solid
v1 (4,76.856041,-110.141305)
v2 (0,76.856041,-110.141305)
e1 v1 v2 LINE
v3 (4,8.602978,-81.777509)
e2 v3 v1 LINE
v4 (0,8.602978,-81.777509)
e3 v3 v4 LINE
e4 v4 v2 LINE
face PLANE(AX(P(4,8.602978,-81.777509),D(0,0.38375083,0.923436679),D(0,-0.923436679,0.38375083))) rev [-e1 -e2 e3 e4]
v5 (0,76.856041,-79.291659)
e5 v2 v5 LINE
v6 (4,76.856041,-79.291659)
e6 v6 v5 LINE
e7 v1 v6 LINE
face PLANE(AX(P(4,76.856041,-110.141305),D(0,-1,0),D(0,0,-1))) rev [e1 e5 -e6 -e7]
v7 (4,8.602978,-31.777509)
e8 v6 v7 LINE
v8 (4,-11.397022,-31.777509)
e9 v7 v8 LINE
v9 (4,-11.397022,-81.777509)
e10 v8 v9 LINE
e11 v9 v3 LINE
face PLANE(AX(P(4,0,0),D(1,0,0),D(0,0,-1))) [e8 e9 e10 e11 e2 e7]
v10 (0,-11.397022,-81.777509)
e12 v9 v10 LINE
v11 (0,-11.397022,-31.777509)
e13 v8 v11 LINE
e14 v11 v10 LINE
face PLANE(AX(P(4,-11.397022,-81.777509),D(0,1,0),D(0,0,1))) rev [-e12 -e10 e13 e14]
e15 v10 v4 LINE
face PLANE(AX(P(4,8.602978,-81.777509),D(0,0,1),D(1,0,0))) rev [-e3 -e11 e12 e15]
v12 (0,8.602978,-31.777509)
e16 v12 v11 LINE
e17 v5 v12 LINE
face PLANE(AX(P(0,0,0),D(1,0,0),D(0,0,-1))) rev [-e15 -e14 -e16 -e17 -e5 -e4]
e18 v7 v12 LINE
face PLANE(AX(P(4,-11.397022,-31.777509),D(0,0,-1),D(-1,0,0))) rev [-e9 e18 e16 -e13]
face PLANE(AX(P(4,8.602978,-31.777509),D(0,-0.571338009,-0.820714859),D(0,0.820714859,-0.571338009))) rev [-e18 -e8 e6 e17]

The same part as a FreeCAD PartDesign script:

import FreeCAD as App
import Part
import Sketcher
from FreeCAD import Vector

doc = App.newDocument("Part")
params = doc.addObject("Spreadsheet::Sheet", "Params")
for row, (alias, value) in enumerate([
    ("sketch1_width", "20 mm"),
    ("sketch1_height", "50 mm"),
    ("pad1_length", "4 mm"),
], start=1):
    params.set(f"A{row}", alias)
    params.set(f"B{row}", "=" + value)
    params.setAlias(f"B{row}", alias)

body = doc.addObject("PartDesign::Body", "Body")

# Sketch on YZ plane
sketch1 = body.newObject("Sketcher::SketchObject", "Sketch")
sketch1.AttachmentSupport = (doc.getObject("YZ_Plane"), [""])
sketch1.MapMode = "FlatFace"
sketch1.addGeometry([
    Part.LineSegment(Vector(77, -79, 0), Vector(9, -32, 0)),  # 0
    Part.LineSegment(Vector(9, -32, 0), Vector(-11, -32, 0)),  # 1
    Part.LineSegment(Vector(-11, -32, 0), Vector(-11, -82, 0)),  # 2
    Part.LineSegment(Vector(-11, -82, 0), Vector(9, -82, 0)),  # 3
    Part.LineSegment(Vector(9, -82, 0), Vector(77, -110, 0)),  # 4
    Part.LineSegment(Vector(77, -110, 0), Vector(77, -79, 0)),  # 5
], False)
sketch1.addConstraint([
    Sketcher.Constraint("Coincident", 0, 2, 1, 1),
    Sketcher.Constraint("Coincident", 1, 2, 2, 1),
    Sketcher.Constraint("Coincident", 2, 2, 3, 1),
    Sketcher.Constraint("Coincident", 3, 2, 4, 1),
    Sketcher.Constraint("Coincident", 4, 2, 5, 1),
    Sketcher.Constraint("Coincident", 5, 2, 0, 1),
    Sketcher.Constraint("Horizontal", 1),
    Sketcher.Constraint("Vertical", 2),
    Sketcher.Constraint("Horizontal", 3),
    Sketcher.Constraint("Vertical", 5),
    Sketcher.Constraint("Vertical", 0, 2, 3, 2),
    Sketcher.Constraint("DistanceX", 1, 2, 1, 1, 20.0),
    Sketcher.Constraint("DistanceY", 2, 2, 2, 1, 50.0),
    Sketcher.Constraint("Distance", 4, 73.912012),
    Sketcher.Constraint("DistanceY", 5, 1, 5, 2, 30.849646),
    Sketcher.Constraint("DistanceY", 0, 2, -1, 1, 31.777509),
    Sketcher.Constraint("DistanceX", -1, 1, 4, 2, 76.856041),
    Sketcher.Constraint("DistanceY", 5, 2, -1, 1, 79.291659),
])
sketch1.setExpression("Constraints[11]", "Params.sketch1_width")
sketch1.setExpression("Constraints[12]", "Params.sketch1_height")
pad1 = body.newObject("PartDesign::Pad", "Pad")
pad1.Profile = sketch1
pad1.setExpression("Length", "Params.pad1_length")

doc.recompute()
